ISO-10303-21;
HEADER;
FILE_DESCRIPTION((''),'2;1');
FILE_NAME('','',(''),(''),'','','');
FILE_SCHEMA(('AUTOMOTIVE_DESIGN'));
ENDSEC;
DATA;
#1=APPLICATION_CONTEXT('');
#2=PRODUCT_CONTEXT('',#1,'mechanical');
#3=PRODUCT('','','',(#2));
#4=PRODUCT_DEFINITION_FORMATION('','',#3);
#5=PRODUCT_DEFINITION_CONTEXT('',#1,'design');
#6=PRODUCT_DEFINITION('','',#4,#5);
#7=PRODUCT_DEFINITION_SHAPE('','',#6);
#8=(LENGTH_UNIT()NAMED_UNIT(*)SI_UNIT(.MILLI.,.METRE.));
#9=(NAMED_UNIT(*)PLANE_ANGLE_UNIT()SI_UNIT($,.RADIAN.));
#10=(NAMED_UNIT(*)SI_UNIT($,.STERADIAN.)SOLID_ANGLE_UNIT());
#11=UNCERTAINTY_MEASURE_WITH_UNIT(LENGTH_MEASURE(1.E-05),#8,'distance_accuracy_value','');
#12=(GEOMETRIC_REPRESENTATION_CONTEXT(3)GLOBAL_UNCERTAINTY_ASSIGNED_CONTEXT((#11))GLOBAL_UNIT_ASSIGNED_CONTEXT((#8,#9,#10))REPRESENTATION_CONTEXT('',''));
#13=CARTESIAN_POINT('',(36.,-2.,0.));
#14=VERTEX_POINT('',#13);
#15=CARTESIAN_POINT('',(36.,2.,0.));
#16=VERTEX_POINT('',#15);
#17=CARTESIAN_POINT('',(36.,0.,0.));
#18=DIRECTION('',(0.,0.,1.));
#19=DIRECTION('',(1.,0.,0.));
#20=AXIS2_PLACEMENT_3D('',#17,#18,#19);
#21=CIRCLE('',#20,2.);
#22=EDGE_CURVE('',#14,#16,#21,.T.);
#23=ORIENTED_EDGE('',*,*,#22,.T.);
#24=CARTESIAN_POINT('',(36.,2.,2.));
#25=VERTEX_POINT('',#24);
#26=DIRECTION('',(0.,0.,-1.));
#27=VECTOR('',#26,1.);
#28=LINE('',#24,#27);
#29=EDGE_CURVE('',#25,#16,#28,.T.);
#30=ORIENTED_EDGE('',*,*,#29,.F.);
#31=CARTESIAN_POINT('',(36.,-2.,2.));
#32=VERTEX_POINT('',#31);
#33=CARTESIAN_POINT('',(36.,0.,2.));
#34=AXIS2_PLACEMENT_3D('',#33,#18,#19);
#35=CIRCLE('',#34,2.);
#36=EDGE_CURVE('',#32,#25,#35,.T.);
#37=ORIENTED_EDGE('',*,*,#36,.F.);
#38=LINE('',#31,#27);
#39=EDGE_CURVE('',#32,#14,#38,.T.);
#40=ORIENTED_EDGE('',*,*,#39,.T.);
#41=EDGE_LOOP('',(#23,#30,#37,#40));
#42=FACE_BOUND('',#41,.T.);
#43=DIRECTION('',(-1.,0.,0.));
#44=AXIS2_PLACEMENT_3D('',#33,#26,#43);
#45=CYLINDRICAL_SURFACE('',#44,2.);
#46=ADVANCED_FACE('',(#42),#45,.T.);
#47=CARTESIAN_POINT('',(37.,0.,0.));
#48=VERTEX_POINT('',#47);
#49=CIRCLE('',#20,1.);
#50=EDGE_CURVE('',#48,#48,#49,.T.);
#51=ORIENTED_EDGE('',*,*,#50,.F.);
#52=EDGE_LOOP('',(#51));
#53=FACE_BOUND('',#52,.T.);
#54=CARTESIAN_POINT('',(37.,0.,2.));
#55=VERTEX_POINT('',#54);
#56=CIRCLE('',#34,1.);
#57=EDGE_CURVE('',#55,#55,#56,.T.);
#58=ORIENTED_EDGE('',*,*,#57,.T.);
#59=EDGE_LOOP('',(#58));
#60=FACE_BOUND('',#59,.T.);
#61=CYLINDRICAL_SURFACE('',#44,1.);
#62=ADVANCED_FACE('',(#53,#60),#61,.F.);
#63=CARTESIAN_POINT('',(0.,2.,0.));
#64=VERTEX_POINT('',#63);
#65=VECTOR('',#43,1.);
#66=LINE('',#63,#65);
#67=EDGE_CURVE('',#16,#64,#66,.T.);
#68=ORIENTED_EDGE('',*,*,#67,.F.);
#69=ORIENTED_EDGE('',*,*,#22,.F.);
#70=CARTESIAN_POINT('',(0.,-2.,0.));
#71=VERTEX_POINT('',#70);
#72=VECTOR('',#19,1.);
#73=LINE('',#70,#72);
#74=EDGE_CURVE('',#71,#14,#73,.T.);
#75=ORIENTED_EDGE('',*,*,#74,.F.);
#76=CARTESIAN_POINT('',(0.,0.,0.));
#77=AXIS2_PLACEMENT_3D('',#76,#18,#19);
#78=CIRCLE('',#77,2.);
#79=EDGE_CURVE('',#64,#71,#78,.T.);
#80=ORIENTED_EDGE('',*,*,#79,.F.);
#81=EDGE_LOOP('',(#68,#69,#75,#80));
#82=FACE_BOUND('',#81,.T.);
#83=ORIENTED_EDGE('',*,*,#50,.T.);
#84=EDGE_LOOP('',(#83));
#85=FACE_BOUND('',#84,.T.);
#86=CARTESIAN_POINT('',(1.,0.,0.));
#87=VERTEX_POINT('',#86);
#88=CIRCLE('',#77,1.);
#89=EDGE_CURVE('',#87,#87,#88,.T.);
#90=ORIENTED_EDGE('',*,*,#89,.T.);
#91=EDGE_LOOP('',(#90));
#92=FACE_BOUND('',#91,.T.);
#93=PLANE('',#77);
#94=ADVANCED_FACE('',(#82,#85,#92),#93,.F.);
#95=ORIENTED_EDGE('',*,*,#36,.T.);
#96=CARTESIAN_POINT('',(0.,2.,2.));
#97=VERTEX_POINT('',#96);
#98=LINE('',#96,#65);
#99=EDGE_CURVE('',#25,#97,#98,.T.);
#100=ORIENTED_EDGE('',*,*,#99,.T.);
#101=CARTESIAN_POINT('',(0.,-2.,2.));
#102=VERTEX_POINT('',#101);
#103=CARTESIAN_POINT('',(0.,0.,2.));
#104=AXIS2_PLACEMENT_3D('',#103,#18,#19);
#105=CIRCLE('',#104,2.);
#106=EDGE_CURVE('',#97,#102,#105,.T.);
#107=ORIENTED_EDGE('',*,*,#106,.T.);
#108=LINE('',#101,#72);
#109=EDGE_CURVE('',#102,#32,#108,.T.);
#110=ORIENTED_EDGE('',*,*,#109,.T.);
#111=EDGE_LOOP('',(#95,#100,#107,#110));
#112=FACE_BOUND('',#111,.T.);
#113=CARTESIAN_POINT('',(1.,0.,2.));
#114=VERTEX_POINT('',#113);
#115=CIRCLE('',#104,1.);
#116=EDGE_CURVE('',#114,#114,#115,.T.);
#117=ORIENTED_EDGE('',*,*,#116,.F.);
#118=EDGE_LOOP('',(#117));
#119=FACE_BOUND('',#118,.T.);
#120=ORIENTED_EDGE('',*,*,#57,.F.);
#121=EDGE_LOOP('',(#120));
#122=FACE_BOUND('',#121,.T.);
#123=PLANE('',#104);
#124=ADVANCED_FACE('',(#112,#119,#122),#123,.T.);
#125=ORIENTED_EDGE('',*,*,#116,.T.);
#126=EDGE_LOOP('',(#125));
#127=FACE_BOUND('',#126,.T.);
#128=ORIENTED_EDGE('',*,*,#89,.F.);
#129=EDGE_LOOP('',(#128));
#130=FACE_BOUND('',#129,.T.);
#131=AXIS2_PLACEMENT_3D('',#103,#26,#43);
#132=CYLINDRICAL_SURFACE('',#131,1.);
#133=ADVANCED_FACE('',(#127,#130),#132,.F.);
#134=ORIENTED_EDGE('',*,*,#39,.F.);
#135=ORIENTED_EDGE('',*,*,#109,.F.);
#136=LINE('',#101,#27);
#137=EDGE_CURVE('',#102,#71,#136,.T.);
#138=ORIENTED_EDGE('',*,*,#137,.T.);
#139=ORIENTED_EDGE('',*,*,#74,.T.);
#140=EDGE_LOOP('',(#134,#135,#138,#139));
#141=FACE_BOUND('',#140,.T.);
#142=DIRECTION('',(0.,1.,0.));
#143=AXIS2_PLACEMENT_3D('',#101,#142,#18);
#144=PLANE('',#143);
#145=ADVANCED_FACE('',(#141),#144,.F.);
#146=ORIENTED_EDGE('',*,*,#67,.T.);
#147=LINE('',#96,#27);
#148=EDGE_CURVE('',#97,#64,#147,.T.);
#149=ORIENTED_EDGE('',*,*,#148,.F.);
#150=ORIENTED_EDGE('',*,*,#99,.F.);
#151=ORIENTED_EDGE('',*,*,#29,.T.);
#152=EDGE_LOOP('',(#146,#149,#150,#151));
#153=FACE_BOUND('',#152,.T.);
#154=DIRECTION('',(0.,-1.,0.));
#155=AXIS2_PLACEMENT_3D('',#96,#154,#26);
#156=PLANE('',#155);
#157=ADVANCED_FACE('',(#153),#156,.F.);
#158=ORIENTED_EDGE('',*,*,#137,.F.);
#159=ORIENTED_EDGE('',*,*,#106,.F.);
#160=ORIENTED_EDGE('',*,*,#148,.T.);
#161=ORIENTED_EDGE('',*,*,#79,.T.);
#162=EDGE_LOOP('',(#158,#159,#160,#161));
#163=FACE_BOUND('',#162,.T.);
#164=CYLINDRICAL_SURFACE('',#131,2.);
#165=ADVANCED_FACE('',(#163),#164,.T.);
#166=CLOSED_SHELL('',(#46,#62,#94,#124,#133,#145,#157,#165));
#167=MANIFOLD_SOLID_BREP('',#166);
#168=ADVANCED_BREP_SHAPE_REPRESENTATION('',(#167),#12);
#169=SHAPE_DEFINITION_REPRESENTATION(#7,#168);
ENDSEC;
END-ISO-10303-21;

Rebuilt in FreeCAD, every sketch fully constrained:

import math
import FreeCAD as App
import Part
import Sketcher
from FreeCAD import Vector

doc = App.newDocument("Part")
params = doc.addObject("Spreadsheet::Sheet", "Params")
for row, (alias, value) in enumerate([
    ("sketch1_diameter", "2 mm"),
    ("sketch1_radius", "2 mm"),
    ("sketch1_width", "36 mm"),
    ("pad1_length", "2 mm"),
], start=1):
    params.set(f"A{row}", alias)
    params.set(f"B{row}", "=" + value)
    params.setAlias(f"B{row}", alias)

body = doc.addObject("PartDesign::Body", "Body")

# Sketch on XY plane
sketch1 = doc.addObject("Sketcher::SketchObject", "Sketch")
body.addObject(sketch1)
sketch1.AttachmentSupport = (doc.XY_Plane, [""])
sketch1.MapMode = "FlatFace"
sketch1.addGeometry(Part.LineSegment(Vector(36, 2, 0), Vector(0, 2, 0)), False)
sketch1.addGeometry(Part.ArcOfCircle(Part.Circle(Vector(0, 0, 0), Vector(0, 0, 1), 2), math.radians(90), math.radians(270)), False)
sketch1.addGeometry(Part.LineSegment(Vector(0, -2, 0), Vector(36, -2, 0)), False)
sketch1.addGeometry(Part.ArcOfCircle(Part.Circle(Vector(36, 0, 0), Vector(0, 0, 1), 2), math.radians(-90), math.radians(90)), False)
sketch1.addGeometry(Part.Circle(Vector(36, 0, 0), Vector(0, 0, 1), 1), False)
sketch1.addGeometry(Part.Circle(Vector(0, 0, 0), Vector(0, 0, 1), 1), False)
sketch1.addConstraint(Sketcher.Constraint("Tangent", 0, 2, 1, 1))
sketch1.addConstraint(Sketcher.Constraint("Tangent", 1, 2, 2, 1))
sketch1.addConstraint(Sketcher.Constraint("Tangent", 2, 2, 3, 1))
sketch1.addConstraint(Sketcher.Constraint("Tangent", 3, 2, 0, 1))
sketch1.addConstraint(Sketcher.Constraint("Horizontal", 0))
sketch1.addConstraint(Sketcher.Constraint("Horizontal", 2))
sketch1.addConstraint(Sketcher.Constraint("Coincident", 1, 3, -1, 1))
sketch1.addConstraint(Sketcher.Constraint("Coincident", 5, 3, -1, 1))
sketch1.addConstraint(Sketcher.Constraint("Coincident", 4, 3, 3, 3))
sketch1.addConstraint(Sketcher.Constraint("Equal", 4, 5))
sketch1.addConstraint(Sketcher.Constraint("Diameter", 4, 2.0))
sketch1.addConstraint(Sketcher.Constraint("Radius", 1, 2.0))
sketch1.addConstraint(Sketcher.Constraint("DistanceX", 0, 2, 0, 1, 36.0))
sketch1.setExpression("Constraints[10]", "Params.sketch1_diameter")
sketch1.setExpression("Constraints[11]", "Params.sketch1_radius")
sketch1.setExpression("Constraints[12]", "Params.sketch1_width")
pad1 = doc.addObject("PartDesign::Pad", "Pad")
body.addObject(pad1)
pad1.Profile = sketch1
pad1.setExpression("Length", "Params.pad1_length")

doc.recompute()
